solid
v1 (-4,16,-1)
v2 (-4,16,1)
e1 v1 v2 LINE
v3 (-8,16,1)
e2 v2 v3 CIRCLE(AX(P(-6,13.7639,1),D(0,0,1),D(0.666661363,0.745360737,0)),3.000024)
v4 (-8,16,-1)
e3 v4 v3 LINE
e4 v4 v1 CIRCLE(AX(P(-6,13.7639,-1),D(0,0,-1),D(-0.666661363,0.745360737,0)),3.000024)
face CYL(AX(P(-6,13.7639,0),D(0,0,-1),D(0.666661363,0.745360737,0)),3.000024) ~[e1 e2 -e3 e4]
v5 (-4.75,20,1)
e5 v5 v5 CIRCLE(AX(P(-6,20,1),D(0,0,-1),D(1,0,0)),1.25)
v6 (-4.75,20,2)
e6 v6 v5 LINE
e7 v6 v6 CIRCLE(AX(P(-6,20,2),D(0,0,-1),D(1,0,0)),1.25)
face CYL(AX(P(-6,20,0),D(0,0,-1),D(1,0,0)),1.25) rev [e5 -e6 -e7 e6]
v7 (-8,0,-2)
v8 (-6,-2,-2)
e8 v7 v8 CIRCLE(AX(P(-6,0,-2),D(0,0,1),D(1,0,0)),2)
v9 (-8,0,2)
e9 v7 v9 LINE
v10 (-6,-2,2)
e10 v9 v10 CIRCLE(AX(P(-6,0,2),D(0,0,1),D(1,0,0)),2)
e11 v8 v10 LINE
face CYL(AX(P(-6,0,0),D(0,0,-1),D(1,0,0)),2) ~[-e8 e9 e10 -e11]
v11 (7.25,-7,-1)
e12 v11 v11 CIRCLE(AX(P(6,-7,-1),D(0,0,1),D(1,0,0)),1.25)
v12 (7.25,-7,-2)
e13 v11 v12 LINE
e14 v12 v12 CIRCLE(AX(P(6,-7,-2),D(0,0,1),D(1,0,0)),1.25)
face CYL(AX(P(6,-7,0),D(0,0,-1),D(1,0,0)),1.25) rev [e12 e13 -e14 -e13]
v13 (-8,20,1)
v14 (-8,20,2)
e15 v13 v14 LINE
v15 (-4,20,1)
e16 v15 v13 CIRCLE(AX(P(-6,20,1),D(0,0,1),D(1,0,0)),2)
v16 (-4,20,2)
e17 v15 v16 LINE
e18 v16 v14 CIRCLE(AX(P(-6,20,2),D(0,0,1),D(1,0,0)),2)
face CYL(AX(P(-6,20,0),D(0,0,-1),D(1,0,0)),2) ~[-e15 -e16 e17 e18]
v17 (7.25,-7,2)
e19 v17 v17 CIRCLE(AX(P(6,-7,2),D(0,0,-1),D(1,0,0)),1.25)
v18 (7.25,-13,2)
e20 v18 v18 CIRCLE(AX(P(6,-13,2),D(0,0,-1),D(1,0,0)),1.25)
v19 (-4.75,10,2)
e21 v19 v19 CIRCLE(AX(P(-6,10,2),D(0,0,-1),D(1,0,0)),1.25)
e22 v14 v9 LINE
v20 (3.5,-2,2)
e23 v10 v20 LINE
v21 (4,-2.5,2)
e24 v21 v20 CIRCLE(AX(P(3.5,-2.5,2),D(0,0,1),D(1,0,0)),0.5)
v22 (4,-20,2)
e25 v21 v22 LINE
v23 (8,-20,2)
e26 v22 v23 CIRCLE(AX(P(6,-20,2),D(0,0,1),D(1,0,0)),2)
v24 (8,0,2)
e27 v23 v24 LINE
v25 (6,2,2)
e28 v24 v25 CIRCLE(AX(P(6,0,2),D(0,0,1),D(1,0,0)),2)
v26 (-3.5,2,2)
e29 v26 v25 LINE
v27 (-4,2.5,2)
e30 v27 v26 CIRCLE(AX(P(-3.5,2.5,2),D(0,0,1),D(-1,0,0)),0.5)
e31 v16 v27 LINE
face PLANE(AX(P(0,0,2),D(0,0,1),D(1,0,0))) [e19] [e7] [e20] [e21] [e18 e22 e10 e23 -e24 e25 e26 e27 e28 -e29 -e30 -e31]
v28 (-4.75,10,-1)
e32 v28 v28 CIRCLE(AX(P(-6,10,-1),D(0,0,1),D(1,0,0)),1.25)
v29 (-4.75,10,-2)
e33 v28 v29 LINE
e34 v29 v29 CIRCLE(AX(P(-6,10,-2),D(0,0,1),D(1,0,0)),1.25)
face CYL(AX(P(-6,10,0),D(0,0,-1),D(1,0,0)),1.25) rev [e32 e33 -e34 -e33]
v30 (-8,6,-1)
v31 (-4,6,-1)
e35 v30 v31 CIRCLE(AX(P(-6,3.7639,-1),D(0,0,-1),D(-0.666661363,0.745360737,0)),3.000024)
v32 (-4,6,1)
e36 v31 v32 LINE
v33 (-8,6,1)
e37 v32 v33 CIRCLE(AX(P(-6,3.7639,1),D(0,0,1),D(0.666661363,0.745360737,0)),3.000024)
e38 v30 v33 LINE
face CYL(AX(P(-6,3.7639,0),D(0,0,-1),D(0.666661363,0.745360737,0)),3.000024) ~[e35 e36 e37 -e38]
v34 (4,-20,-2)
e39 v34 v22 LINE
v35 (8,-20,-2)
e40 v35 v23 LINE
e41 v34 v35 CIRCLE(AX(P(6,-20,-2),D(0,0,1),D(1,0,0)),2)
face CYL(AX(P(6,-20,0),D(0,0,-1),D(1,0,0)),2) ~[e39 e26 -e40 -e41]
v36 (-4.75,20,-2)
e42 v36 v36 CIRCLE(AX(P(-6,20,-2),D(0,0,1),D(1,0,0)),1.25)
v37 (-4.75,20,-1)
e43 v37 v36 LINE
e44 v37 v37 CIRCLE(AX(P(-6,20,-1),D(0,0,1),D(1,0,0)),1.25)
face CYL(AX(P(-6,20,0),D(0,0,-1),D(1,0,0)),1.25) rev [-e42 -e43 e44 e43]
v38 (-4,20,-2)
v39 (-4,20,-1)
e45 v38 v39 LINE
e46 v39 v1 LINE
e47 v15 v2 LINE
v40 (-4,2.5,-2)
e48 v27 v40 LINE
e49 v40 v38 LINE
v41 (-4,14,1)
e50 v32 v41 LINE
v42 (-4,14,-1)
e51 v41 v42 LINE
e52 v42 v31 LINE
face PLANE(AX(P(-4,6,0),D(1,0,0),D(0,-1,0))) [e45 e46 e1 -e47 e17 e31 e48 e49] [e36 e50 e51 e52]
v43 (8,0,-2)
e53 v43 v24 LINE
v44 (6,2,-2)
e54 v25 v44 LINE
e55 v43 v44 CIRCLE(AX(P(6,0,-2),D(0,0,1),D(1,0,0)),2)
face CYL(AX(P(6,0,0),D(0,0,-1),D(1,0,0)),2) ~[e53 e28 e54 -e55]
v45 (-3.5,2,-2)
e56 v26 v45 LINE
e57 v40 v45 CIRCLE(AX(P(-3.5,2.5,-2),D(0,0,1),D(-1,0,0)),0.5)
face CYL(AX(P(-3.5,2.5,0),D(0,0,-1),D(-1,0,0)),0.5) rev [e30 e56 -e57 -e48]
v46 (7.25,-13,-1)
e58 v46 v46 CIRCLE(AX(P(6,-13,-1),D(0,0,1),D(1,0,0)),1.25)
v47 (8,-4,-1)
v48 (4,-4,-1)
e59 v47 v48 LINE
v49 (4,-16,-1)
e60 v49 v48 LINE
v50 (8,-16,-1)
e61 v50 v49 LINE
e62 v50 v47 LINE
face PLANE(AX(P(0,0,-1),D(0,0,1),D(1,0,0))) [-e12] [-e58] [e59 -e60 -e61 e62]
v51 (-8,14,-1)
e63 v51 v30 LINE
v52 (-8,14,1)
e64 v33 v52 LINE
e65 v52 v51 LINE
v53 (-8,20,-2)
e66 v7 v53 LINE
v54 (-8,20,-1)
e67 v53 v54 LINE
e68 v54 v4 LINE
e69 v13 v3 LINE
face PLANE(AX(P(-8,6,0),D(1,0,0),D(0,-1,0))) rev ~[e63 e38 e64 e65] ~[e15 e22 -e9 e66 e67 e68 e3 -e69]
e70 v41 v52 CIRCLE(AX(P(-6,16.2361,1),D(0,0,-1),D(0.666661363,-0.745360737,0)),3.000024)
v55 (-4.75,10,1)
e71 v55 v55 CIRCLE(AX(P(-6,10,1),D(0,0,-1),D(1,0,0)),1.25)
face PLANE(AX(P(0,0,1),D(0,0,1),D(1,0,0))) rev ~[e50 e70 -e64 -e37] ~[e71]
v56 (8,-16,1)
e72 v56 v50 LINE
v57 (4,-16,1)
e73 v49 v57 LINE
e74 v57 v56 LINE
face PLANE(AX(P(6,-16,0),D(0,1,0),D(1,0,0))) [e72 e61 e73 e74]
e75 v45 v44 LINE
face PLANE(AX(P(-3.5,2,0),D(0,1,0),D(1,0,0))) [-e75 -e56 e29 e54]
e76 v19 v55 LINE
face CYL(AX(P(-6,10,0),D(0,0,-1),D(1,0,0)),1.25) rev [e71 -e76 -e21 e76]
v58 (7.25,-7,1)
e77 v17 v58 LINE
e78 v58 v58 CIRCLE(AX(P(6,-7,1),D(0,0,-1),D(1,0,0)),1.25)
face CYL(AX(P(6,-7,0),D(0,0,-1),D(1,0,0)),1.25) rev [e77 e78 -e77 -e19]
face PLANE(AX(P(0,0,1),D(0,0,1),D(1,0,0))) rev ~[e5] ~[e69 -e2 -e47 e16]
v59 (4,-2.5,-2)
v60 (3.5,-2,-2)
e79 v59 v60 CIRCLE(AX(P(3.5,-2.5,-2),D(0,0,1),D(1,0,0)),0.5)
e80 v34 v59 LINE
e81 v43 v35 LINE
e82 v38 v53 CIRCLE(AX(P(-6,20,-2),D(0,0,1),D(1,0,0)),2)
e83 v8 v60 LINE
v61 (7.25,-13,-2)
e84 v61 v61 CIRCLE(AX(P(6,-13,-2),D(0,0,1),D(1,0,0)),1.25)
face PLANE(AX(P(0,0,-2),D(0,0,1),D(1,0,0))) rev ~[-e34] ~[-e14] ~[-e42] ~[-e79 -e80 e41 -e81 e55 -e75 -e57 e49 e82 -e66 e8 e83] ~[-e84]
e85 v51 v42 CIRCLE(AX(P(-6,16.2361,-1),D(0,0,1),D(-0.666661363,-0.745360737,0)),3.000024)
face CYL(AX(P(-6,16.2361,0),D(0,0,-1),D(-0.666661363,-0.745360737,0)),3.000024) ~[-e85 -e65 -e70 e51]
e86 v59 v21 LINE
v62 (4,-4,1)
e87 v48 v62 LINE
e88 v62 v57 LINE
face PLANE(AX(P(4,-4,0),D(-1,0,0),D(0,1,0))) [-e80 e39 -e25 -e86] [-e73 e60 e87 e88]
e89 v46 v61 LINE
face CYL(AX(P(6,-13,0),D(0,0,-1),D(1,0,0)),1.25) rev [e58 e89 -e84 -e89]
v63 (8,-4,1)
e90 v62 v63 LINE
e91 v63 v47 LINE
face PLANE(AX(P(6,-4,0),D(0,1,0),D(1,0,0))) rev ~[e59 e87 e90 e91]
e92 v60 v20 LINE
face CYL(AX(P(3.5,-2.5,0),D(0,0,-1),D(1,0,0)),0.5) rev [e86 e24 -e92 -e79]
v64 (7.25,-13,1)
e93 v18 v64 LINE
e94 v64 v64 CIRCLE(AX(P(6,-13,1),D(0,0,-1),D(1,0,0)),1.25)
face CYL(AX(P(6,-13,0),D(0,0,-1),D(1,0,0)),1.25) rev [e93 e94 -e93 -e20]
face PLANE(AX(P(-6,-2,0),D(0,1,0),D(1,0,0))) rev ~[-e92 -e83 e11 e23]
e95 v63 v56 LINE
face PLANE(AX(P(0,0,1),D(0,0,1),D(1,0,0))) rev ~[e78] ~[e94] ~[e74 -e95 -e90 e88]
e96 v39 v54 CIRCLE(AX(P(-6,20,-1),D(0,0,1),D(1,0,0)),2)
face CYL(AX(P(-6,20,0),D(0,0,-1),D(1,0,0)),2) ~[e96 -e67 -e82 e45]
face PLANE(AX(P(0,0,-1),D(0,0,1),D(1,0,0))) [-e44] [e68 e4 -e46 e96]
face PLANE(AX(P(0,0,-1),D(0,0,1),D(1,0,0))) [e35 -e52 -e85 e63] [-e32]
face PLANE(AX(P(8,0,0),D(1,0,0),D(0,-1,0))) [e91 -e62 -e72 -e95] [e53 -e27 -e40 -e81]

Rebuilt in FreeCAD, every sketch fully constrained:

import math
import FreeCAD as App
import Part
import Sketcher


def add_polygon(sketch, points):
    """Adds a closed chain of lines whose ends are joined by coincident constraints."""
    first, n = sketch.GeometryCount, len(points)
    for a, b in zip(points, points[1:] + points[:1]):
        sketch.addGeometry(Part.LineSegment(App.Vector(*a, 0), App.Vector(*b, 0)), False)
    for i in range(n):
        sketch.addConstraint(Sketcher.Constraint("Coincident", first + i, 2, first + (i + 1) % n, 1))

doc = App.newDocument("Part")
params = doc.addObject("Spreadsheet::Sheet", "Params")
for row, (alias, value) in enumerate([
    ("sketch1_radius", "2 mm"),
    ("sketch1_diameter", "2.5 mm"),
    ("sketch1_radius2", "0.5 mm"),
    ("sketch1_height", "20 mm"),
    ("pad1_length", "4 mm"),
    ("sketch2_radius", "3 mm"),
    ("sketch2_radius2", "2 mm"),
    ("sketch2_diameter", "2.5 mm"),
    ("pocket1_length", "2 mm"),
], start=1):
    params.set(f"A{row}", alias)
    params.set(f"B{row}", "=" + value)
    params.setAlias(f"B{row}", alias)

body = doc.addObject("PartDesign::Body", "Body")

sketch1 = doc.addObject("Sketcher::SketchObject", "Sketch")
body.addObject(sketch1)
sketch1.AttachmentSupport = (doc.XY_Plane, [""])
sketch1.MapMode = "FlatFace"
sketch1.addGeometry([
    Part.LineSegment(App.Vector(-4, 2.5, 0), App.Vector(-4, 20, 0)),
    Part.ArcOfCircle(Part.Circle(App.Vector(-6, 20, 0), App.Vector(0, 0, 1), 2), math.radians(0), math.radians(180)),
    Part.LineSegment(App.Vector(-8, 20, 0), App.Vector(-8, 0, 0)),
    Part.ArcOfCircle(Part.Circle(App.Vector(-6, 0, 0), App.Vector(0, 0, 1), 2), math.radians(180), math.radians(270)),
    Part.LineSegment(App.Vector(-6, -2, 0), App.Vector(3.5, -2, 0)),
    Part.ArcOfCircle(Part.Circle(App.Vector(3.5, -2.5, 0), App.Vector(0, 0, 1), 0.5), math.radians(0), math.radians(90)),
    Part.LineSegment(App.Vector(4, -2.5, 0), App.Vector(4, -20, 0)),
    Part.ArcOfCircle(Part.Circle(App.Vector(6, -20, 0), App.Vector(0, 0, 1), 2), math.radians(180), math.radians(360)),
    Part.LineSegment(App.Vector(8, -20, 0), App.Vector(8, 0, 0)),
    Part.ArcOfCircle(Part.Circle(App.Vector(6, 0, 0), App.Vector(0, 0, 1), 2), math.radians(0), math.radians(90)),
    Part.LineSegment(App.Vector(6, 2, 0), App.Vector(-3.5, 2, 0)),
    Part.ArcOfCircle(Part.Circle(App.Vector(-3.5, 2.5, 0), App.Vector(0, 0, 1), 0.5), math.radians(180), math.radians(270)),
    Part.Circle(App.Vector(6, -7, 0), App.Vector(0, 0, 1), 1.2),
    Part.Circle(App.Vector(-6, 10, 0), App.Vector(0, 0, 1), 1.2),
    Part.Circle(App.Vector(6, -13, 0), App.Vector(0, 0, 1), 1.2),
    Part.Circle(App.Vector(-6, 20, 0), App.Vector(0, 0, 1), 1.2),
], False)
sketch1.addConstraint([
    Sketcher.Constraint("Tangent", 0, 2, 1, 1),
    Sketcher.Constraint("Tangent", 1, 2, 2, 1),
    Sketcher.Constraint("Tangent", 2, 2, 3, 1),
    Sketcher.Constraint("Tangent", 3, 2, 4, 1),
    Sketcher.Constraint("Tangent", 4, 2, 5, 2),
    Sketcher.Constraint("Tangent", 5, 1, 6, 1),
    Sketcher.Constraint("Tangent", 6, 2, 7, 1),
    Sketcher.Constraint("Tangent", 7, 2, 8, 1),
    Sketcher.Constraint("Tangent", 8, 2, 9, 1),
    Sketcher.Constraint("Tangent", 9, 2, 10, 1),
    Sketcher.Constraint("Tangent", 10, 2, 11, 2),
    Sketcher.Constraint("Tangent", 11, 1, 0, 1),
    Sketcher.Constraint("Vertical", 0),
    Sketcher.Constraint("Vertical", 2),
    Sketcher.Constraint("Horizontal", 4),
    Sketcher.Constraint("Vertical", 6),
    Sketcher.Constraint("Vertical", 8),
    Sketcher.Constraint("Horizontal", 10),
    Sketcher.Constraint("Coincident", 15, 3, 1, 3),
    Sketcher.Constraint("Equal", 1, 3),
    Sketcher.Constraint("Equal", 3, 7),
    Sketcher.Constraint("Equal", 7, 9),
    Sketcher.Constraint("Equal", 5, 11),
    Sketcher.Constraint("Equal", 12, 13),
    Sketcher.Constraint("Equal", 13, 14),
    Sketcher.Constraint("Equal", 14, 15),
    Sketcher.Constraint("Symmetric", 1, 3, 7, 3, -1, 1),
    Sketcher.Constraint("PointOnObject", 3, 3, -1),
    Sketcher.Constraint("PointOnObject", 9, 3, -1),
    Sketcher.Constraint("Vertical", 9, 3, 12, 3),
    Sketcher.Constraint("Vertical", 3, 3, 13, 3),
    Sketcher.Constraint("Vertical", 12, 3, 14, 3),
    Sketcher.Constraint("Radius", 1, 2.0),
    Sketcher.Constraint("Diameter", 12, 2.5),
    Sketcher.Constraint("Radius", 5, 0.5),
    Sketcher.Constraint("DistanceY", 2, 2, 2, 1, 20.0),
    Sketcher.Constraint("DistanceX", 1, 3, -1, 1, 6.0),
    Sketcher.Constraint("DistanceY", 12, 3, -1, 1, 7.0),
    Sketcher.Constraint("DistanceY", -1, 1, 13, 3, 10.0),
    Sketcher.Constraint("DistanceY", 14, 3, 12, 3, 6.0),
])
sketch1.setExpression("Constraints[32]", "Params.sketch1_radius")
sketch1.setExpression("Constraints[33]", "Params.sketch1_diameter")
sketch1.setExpression("Constraints[34]", "Params.sketch1_radius2")
sketch1.setExpression("Constraints[35]", "Params.sketch1_height")
pad1 = doc.addObject("PartDesign::Pad", "Pad")
body.addObject(pad1)
pad1.Profile = sketch1
pad1.setExpression("Length", "Params.pad1_length")
pad1.Midplane = True

sketch2 = doc.addObject("Sketcher::SketchObject", "Sketch001")
body.addObject(sketch2)
sketch2.AttachmentSupport = (doc.XY_Plane, [""])
sketch2.MapMode = "FlatFace"
add_polygon(sketch2, [(8, -4), (4, -4), (4, -16), (8, -16)])
sketch2.addGeometry(Part.Circle(App.Vector(6, -7, 0), App.Vector(0, 0, 1), 1.2), False)
sketch2.addGeometry(Part.Circle(App.Vector(6, -13, 0), App.Vector(0, 0, 1), 1.2), False)
sketch2.addGeometry(Part.ArcOfCircle(Part.Circle(App.Vector(-6, 3.8, 0), App.Vector(0, 0, 1), 3), math.radians(48), math.radians(132)), False)
sketch2.addGeometry(Part.LineSegment(App.Vector(-4, 6, 0), App.Vector(-4, 14, 0)), False)
sketch2.addGeometry(Part.ArcOfCircle(Part.Circle(App.Vector(-6, 16.2, 0), App.Vector(0, 0, 1), 3), math.radians(-132), math.radians(-48)), False)
sketch2.addGeometry(Part.LineSegment(App.Vector(-8, 14, 0), App.Vector(-8, 6, 0)), False)
sketch2.addGeometry(Part.Circle(App.Vector(-6, 10, 0), App.Vector(0, 0, 1), 1.2), False)
sketch2.addGeometry(Part.LineSegment(App.Vector(-8, 20, 0), App.Vector(-8, 16, 0)), False)
sketch2.addGeometry(Part.ArcOfCircle(Part.Circle(App.Vector(-6, 13.8, 0), App.Vector(0, 0, 1), 3), math.radians(48), math.radians(132)), False)
sketch2.addGeometry(Part.LineSegment(App.Vector(-4, 16, 0), App.Vector(-4, 20, 0)), False)
sketch2.addGeometry(Part.ArcOfCircle(Part.Circle(App.Vector(-6, 20, 0), App.Vector(0, 0, 1), 2), math.radians(0), math.radians(180)), False)
sketch2.addGeometry(Part.Circle(App.Vector(-6, 20, 0), App.Vector(0, 0, 1), 1.2), False)
sketch2.addConstraint([
    Sketcher.Constraint("Coincident", 6, 1, 7, 1),
    Sketcher.Constraint("Coincident", 7, 2, 8, 2),
    Sketcher.Constraint("Coincident", 8, 1, 9, 1),
    Sketcher.Constraint("Coincident", 9, 2, 6, 2),
    Sketcher.Constraint("Coincident", 11, 2, 12, 2),
    Sketcher.Constraint("Coincident", 12, 1, 13, 1),
    Sketcher.Constraint("Tangent", 13, 2, 14, 1),
    Sketcher.Constraint("Tangent", 14, 2, 11, 1),
    Sketcher.Constraint("Horizontal", 0),
    Sketcher.Constraint("Vertical", 1),
    Sketcher.Constraint("Horizontal", 2),
    Sketcher.Constraint("Vertical", 3),
    Sketcher.Constraint("Vertical", 7),
    Sketcher.Constraint("Vertical", 9),
    Sketcher.Constraint("Vertical", 11),
    Sketcher.Constraint("Vertical", 13),
    Sketcher.Constraint("Coincident", 15, 3, 14, 3),
    Sketcher.Constraint("Equal", 4, 5),
    Sketcher.Constraint("Equal", 6, 8),
    Sketcher.Constraint("Equal", 5, 10),
    Sketcher.Constraint("Equal", 8, 12),
    Sketcher.Constraint("Equal", 10, 15),
    Sketcher.Constraint("Symmetric", 2, 2, 11, 2, -1, 1),
    Sketcher.Constraint("Symmetric", 1, 2, 12, 1, -1, 1),
    Sketcher.Constraint("Horizontal", 7, 2, 8, 1),
    Sketcher.Constraint("Horizontal", 6, 1, 9, 2),
    Sketcher.Constraint("Vertical", 4, 3, 5, 3),
    Sketcher.Constraint("Vertical", 8, 3, 10, 3),
    Sketcher.Constraint("Vertical", 10, 3, 12, 3),
    Sketcher.Constraint("Vertical", 9, 2, 11, 2),
    Sketcher.Constraint("Equal", 2, 11),
    Sketcher.Constraint("Radius", 6, 3.0),
    Sketcher.Constraint("Radius", 14, 2.0),
    Sketcher.Constraint("Diameter", 4, 2.5),
    Sketcher.Constraint("DistanceX", -1, 1, 4, 3, 6.0),
    Sketcher.Constraint("DistanceY", 4, 3, -1, 1, 7.0),
    Sketcher.Constraint("DistanceX", 6, 3, -1, 1, 6.0),
    Sketcher.Constraint("DistanceY", -1, 1, 10, 3, 10.0),
    Sketcher.Constraint("DistanceY", -1, 1, 14, 3, 20.0),
    Sketcher.Constraint("DistanceY", 0, 2, -1, 1, 4.0),
    Sketcher.Constraint("DistanceY", -1, 1, 6, 1, 6.0),
    Sketcher.Constraint("DistanceY", 5, 3, 4, 3, 6.0),
    Sketcher.Constraint("DistanceY", 10, 3, 7, 2, 4.0),
])
sketch2.setExpression("Constraints[35]", "Params.sketch2_radius")
sketch2.setExpression("Constraints[36]", "Params.sketch2_radius2")
sketch2.setExpression("Constraints[37]", "Params.sketch2_diameter")
pocket1 = doc.addObject("PartDesign::Pocket", "Pocket")
body.addObject(pocket1)
pocket1.Profile = sketch2
pocket1.setExpression("Length", "Params.pocket1_length")
pocket1.Midplane = True

doc.recompute()
